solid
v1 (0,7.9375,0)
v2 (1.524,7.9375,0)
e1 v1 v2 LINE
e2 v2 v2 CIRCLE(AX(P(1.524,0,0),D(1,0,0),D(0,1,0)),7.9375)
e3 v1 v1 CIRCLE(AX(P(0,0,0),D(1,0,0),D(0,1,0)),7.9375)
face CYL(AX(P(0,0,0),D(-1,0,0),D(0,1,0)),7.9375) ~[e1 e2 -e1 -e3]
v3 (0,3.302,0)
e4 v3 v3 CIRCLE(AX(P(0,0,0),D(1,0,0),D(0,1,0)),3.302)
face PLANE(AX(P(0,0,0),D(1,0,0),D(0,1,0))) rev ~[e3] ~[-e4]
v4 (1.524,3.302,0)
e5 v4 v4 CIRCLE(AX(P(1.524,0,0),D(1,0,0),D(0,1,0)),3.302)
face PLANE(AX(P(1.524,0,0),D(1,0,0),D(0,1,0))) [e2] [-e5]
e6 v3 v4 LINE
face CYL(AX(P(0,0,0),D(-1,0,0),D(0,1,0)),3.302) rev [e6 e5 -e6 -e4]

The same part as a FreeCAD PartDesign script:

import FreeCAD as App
import Part
import Sketcher
Q = App.Units.Quantity

doc = App.newDocument("Part")
body = doc.addObject("PartDesign::Body", "Body")

# Sketch on YZ plane
sketch1 = body.newObject("Sketcher::SketchObject", "Sketch")
sketch1.AttachmentSupport = (doc.getObject("YZ_Plane"), [""])
sketch1.MapMode = "FlatFace"
sketch1.addGeometry([
    Part.Circle(App.Vector(0, 0, 0), App.Vector(0, 0, 1), 7.9),
    Part.Circle(App.Vector(0, 0, 0), App.Vector(0, 0, 1), 3.3),
], False)
sketch1.addConstraint([
    Sketcher.Constraint("Coincident", 0, 3, -1, 1),
    Sketcher.Constraint("Coincident", 1, 3, -1, 1),
    Sketcher.Constraint("Diameter", 1, Q("0.26 in")),
    Sketcher.Constraint("Diameter", 0, Q("0.625 in")),
])
pad1 = body.newObject("PartDesign::Pad", "Pad")
pad1.Profile = sketch1
pad1.Length = Q("0.06 in")

doc.recompute()
